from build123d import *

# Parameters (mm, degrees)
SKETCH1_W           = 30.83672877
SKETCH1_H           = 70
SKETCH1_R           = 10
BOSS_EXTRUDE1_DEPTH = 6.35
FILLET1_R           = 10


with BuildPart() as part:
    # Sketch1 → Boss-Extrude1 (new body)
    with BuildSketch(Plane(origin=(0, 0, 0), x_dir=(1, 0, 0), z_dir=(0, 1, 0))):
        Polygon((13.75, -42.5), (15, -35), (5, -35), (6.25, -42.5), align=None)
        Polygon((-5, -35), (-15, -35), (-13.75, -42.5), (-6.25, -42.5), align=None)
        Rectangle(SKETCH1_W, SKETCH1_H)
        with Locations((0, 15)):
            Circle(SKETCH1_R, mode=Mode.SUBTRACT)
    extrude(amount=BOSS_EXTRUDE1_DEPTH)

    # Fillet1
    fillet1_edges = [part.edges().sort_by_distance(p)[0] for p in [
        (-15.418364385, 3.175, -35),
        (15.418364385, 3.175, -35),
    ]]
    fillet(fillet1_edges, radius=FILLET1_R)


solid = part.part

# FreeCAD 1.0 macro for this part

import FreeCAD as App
import Part
import Sketcher

V = App.Vector


def edges_at(feature, points):
    """Names of the edges that pass closest to the given points."""
    edges = feature.Shape.Edges
    near = lambda p: min(range(len(edges)), key=lambda i: edges[i].distToShape(Part.Vertex(*p))[0])
    return sorted({f"Edge{near(p) + 1}" for p in points})


def add_polygon(sketch, points):
    """Adds a closed chain of lines whose ends are joined by coincident constraints."""
    first, n = sketch.GeometryCount, len(points)
    for a, b in zip(points, points[1:] + points[:1]):
        sketch.addGeometry(Part.LineSegment(App.Vector(*a, 0), App.Vector(*b, 0)), False)
    for i in range(n):
        sketch.addConstraint(Sketcher.Constraint("Coincident", first + i, 2, first + (i + 1) % n, 1))

doc = App.newDocument("Part")
body = doc.addObject("PartDesign::Body", "Body")

# Sketch on XZ plane
sketch1 = body.newObject("Sketcher::SketchObject", "Sketch")
sketch1.AttachmentSupport = (doc.getObject("XZ_Plane"), [""])
sketch1.MapMode = "FlatFace"
add_polygon(sketch1, [(13.75, 42.5), (15, 35), (15.42, 35), (15.42, -35), (-15.42, -35), (-15.42, 35), (-15, 35), (-13.75, 42.5), (-6.25, 42.5), (-5, 35), (5, 35), (6.25, 42.5)])  # lines 0-11
sketch1.addGeometry(Part.Circle(V(0, -15, 0), V(0, 0, 1), 10), False)  # 12
sketch1.addConstraint([
    Sketcher.Constraint("Horizontal", 1),
    Sketcher.Constraint("Vertical", 2),
    Sketcher.Constraint("Horizontal", 3),
    Sketcher.Constraint("Vertical", 4),
    Sketcher.Constraint("Horizontal", 5),
    Sketcher.Constraint("Horizontal", 7),
    Sketcher.Constraint("Horizontal", 9),
    Sketcher.Constraint("Horizontal", 11),
    Sketcher.Constraint("Symmetric", 1, 2, 3, 2, -1, 1),
    Sketcher.Constraint("Symmetric", 0, 2, 5, 2, -2),
    Sketcher.Constraint("Symmetric", 7, 2, 10, 2, -2),
    Sketcher.Constraint("PointOnObject", 12, 3, -2),
    Sketcher.Constraint("Parallel", 0, 8),
    Sketcher.Constraint("Parallel", 6, 10),
    Sketcher.Constraint("Horizontal", 5, 2, 8, 2),
    Sketcher.Constraint("Equal", 7, 11),
    Sketcher.Constraint("Diameter", 12, 20.0),
    Sketcher.Constraint("DistanceX", 9, 1, 9, 2, 10.0),
    Sketcher.Constraint("DistanceY", 2, 2, 2, 1, 70.0),
    Sketcher.Constraint("DistanceX", 7, 1, 7, 2, 7.5),
    Sketcher.Constraint("DistanceY", 12, 3, -1, 1, 15.0),
    Sketcher.Constraint("DistanceX", -1, 1, 0, 2, 15.0),
    Sketcher.Constraint("DistanceY", -1, 1, 6, 2, 42.5),
    Sketcher.Constraint("DistanceX", 3, 2, 3, 1, 30.836729),
])
pad1 = body.newObject("PartDesign::Pad", "Pad")
pad1.Profile = sketch1
pad1.Length = 6.35
pad1.Reversed = True
doc.recompute()

fillet = body.newObject("PartDesign::Fillet", "Fillet")
fillet.Base = (pad1, edges_at(pad1, [(-15.418, 3.175, -35), (15.418, 3.175, -35)]))
fillet.Radius = 10

doc.recompute()
